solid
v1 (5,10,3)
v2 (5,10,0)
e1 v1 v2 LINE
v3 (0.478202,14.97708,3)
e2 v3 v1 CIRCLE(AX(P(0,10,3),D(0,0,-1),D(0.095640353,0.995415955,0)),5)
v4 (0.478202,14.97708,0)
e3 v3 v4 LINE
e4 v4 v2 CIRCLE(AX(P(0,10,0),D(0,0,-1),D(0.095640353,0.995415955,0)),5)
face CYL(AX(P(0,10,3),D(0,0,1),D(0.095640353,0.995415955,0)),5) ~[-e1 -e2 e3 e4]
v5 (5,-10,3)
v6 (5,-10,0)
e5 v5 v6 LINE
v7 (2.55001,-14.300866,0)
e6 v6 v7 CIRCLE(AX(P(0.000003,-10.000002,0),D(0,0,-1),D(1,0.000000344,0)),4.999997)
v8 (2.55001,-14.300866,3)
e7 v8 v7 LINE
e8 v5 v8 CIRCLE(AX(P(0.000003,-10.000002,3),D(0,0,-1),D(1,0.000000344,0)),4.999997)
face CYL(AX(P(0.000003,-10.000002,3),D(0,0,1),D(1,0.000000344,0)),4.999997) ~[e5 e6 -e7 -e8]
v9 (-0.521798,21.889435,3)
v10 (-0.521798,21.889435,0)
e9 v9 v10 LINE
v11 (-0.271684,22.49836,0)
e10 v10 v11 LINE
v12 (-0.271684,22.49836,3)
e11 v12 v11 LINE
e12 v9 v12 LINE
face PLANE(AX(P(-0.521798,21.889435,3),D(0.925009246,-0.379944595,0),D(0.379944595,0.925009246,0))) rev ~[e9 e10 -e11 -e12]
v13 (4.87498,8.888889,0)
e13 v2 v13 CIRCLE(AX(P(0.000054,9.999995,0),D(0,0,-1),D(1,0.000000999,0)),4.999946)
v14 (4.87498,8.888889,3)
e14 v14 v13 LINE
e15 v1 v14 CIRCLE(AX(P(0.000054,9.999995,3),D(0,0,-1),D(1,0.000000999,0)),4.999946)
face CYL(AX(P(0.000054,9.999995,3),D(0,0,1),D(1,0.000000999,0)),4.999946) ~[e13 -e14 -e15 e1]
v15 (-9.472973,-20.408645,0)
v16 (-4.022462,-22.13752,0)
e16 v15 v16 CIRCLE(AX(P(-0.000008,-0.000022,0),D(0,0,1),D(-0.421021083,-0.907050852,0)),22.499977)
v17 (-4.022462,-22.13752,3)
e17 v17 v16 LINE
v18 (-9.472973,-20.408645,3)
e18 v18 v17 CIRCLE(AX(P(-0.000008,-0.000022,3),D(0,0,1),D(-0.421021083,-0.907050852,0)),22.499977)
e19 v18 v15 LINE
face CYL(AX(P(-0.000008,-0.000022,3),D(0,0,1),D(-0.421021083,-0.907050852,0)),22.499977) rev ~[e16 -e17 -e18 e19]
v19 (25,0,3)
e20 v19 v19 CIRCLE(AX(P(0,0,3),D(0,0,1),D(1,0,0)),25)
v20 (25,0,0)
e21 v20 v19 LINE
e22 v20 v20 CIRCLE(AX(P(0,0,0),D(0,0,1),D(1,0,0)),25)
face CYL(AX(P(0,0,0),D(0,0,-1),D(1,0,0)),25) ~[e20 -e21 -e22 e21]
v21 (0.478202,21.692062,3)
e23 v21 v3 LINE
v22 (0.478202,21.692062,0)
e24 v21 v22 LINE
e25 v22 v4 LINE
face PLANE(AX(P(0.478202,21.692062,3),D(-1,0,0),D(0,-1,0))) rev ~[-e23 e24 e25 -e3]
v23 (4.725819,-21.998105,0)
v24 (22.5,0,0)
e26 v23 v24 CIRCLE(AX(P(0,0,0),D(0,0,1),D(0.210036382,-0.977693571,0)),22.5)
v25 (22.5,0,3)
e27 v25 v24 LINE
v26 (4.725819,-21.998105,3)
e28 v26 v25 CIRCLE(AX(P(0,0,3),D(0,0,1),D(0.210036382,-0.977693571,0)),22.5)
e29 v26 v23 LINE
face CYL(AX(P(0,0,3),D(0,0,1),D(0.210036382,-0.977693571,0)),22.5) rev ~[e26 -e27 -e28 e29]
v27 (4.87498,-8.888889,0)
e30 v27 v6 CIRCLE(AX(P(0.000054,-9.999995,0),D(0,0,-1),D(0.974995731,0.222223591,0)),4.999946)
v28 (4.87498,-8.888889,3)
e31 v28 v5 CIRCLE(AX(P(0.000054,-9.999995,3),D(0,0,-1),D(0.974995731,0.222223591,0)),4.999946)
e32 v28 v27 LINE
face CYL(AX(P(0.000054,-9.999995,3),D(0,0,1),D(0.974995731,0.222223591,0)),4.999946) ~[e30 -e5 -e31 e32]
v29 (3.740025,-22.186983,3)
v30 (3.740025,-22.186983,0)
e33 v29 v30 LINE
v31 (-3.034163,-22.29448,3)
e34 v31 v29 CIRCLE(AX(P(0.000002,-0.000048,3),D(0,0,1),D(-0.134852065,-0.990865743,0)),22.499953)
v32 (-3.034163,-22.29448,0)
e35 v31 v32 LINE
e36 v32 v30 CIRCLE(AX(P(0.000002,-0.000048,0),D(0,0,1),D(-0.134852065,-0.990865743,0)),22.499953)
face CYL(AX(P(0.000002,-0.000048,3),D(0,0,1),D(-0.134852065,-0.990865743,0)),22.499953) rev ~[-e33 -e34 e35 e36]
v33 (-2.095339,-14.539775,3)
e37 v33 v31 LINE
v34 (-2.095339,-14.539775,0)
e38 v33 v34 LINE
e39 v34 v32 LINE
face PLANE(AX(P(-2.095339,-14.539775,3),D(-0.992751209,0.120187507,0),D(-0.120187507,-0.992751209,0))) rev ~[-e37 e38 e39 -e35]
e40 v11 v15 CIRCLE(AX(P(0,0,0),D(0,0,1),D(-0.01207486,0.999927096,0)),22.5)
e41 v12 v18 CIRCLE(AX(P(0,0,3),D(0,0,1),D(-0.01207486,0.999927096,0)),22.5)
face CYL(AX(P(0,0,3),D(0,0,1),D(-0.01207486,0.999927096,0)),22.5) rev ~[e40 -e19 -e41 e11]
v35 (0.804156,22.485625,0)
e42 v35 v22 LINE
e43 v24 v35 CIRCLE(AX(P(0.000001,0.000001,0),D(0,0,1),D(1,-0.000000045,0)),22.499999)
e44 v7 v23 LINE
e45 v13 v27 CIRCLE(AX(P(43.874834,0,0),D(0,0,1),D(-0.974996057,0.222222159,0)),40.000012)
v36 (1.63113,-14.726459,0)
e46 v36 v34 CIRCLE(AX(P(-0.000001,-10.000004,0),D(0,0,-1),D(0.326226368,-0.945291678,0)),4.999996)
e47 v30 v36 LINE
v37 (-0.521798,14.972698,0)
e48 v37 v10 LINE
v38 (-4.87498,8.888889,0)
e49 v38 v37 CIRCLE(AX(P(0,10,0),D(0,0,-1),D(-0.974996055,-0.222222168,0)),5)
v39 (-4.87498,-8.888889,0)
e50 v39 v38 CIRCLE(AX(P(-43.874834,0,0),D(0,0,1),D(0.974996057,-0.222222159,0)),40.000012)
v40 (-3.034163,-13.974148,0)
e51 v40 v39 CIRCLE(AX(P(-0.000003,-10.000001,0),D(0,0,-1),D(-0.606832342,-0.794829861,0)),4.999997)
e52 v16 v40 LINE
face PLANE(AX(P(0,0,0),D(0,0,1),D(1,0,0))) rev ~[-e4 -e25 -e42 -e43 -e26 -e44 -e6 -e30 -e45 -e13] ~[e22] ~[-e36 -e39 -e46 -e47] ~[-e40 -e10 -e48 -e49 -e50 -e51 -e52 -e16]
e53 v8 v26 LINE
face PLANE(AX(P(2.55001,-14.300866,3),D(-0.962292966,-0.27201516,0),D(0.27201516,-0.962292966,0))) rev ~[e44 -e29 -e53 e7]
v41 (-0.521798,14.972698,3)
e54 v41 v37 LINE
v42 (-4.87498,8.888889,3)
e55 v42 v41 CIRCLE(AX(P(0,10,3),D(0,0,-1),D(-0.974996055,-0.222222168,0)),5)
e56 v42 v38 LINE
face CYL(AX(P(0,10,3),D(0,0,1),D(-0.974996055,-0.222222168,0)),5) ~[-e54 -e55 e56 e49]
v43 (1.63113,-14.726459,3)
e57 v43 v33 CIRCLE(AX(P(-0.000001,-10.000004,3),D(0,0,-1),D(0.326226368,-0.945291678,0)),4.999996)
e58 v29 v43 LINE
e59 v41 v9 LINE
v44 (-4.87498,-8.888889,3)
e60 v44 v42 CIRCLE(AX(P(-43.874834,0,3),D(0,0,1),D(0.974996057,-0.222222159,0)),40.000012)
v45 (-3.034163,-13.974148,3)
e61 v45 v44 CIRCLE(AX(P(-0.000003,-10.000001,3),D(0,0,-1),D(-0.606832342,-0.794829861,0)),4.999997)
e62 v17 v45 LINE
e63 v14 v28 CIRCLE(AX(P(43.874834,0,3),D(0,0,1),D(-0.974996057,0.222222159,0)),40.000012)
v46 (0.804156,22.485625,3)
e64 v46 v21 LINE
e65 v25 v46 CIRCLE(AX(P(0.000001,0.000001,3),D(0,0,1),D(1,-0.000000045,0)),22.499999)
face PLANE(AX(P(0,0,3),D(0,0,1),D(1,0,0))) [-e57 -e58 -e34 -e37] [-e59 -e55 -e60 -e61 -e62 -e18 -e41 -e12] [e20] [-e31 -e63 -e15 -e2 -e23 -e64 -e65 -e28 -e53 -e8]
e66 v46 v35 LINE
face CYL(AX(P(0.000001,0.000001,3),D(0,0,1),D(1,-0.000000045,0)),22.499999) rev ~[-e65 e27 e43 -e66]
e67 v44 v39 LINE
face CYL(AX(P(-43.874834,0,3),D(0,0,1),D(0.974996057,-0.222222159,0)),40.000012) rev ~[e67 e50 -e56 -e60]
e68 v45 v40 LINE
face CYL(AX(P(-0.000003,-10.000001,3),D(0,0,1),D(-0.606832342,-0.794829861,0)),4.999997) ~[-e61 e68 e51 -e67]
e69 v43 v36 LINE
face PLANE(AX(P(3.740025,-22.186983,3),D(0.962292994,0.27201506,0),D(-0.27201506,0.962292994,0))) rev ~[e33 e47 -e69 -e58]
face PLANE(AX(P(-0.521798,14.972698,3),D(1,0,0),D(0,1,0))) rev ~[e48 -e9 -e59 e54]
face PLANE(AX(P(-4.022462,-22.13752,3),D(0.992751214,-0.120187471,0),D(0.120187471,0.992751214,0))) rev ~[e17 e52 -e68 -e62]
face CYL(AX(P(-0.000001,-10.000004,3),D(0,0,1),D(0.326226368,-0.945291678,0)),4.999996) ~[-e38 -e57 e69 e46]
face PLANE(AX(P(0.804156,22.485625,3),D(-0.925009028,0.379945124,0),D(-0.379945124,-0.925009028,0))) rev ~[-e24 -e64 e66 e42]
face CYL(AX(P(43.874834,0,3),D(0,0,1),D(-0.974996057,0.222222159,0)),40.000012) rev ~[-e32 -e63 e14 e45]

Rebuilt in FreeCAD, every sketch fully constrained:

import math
import FreeCAD as App
import Part
import Sketcher
from FreeCAD import Vector
Q = App.Units.Quantity

doc = App.newDocument("Part")
params = doc.addObject("Spreadsheet::Sheet", "Params")
for row, (alias, value) in enumerate([
    ("sketch1_diameter", "50 mm"),
    ("pad1_length", "3 mm"),
    ("sketch2_radius", "5 mm"),
    ("sketch2_radius2", "5 mm"),
    ("sketch2_radius3", "22.5 mm"),
    ("sketch2_radius4", "22.5 mm"),
    ("pocket1_length", "3 mm"),
], start=1):
    params.set(f"A{row}", alias)
    params.set(f"B{row}", "=" + value)
    params.setAlias(f"B{row}", alias)

body = doc.addObject("PartDesign::Body", "Body")

sketch1 = body.newObject("Sketcher::SketchObject", "Sketch")
sketch1.AttachmentSupport = (doc.getObject("XY_Plane"), [""])
sketch1.MapMode = "FlatFace"
sketch1.addGeometry(Part.Circle(Vector(0, 0, 0), Vector(0, 0, 1), 25), False)
sketch1.addConstraint([
    Sketcher.Constraint("Coincident", 0, 3, -1, 1),
    Sketcher.Constraint("Diameter", 0, Q("50 mm")),
])
sketch1.setExpression("Constraints[1]", "Params.sketch1_diameter")
pad1 = body.newObject("PartDesign::Pad", "Pad")
pad1.Profile = sketch1
pad1.setExpression("Length", "Params.pad1_length")

sketch2 = body.newObject("Sketcher::SketchObject", "Sketch001")
sketch2.AttachmentSupport = (doc.getObject("XY_Plane"), [""])
sketch2.MapMode = "FlatFace"
sketch2.AttachmentOffset = App.Placement(Vector(0, 0, 3), App.Rotation())
sketch2.addGeometry([
    Part.ArcOfCircle(Part.Circle(Vector(0, 0, 0), Vector(0, 0, 1), 22.5), math.radians(-77.875516), math.radians(0)),
    Part.ArcOfCircle(Part.Circle(Vector(0.000001, 0.000001, 0), Vector(0, 0, 1), 22.499999), math.radians(-0.000003), math.radians(87.9518)),
    Part.LineSegment(Vector(0.804156, 22.485625, 0), Vector(0.478202, 21.692062, 0)),
    Part.LineSegment(Vector(0.478202, 21.692062, 0), Vector(0.478202, 14.97708, 0)),
    Part.ArcOfCircle(Part.Circle(Vector(0, 10, 0), Vector(0, 0, 1), 5), math.radians(-0.000006), math.radians(84.511823)),
    Part.ArcOfCircle(Part.Circle(Vector(0.000054, 9.999995, 0), Vector(0, 0, 1), 4.999946), math.radians(-12.839669), math.radians(0.000057)),
    Part.ArcOfCircle(Part.Circle(Vector(43.874834, 0, 0), Vector(0, 0, 1), 40.000012), math.radians(167.160415), math.radians(192.839585)),
    Part.ArcOfCircle(Part.Circle(Vector(0.000054, -9.999995, 0), Vector(0, 0, 1), 4.999946), math.radians(-0.000057), math.radians(12.839669)),
    Part.ArcOfCircle(Part.Circle(Vector(0.000003, -10.000002, 0), Vector(0, 0, 1), 4.999997), math.radians(-59.336058), math.radians(0.00002)),
    Part.LineSegment(Vector(2.55001, -14.300866, 0), Vector(4.725819, -21.998105, 0)),
    Part.ArcOfCircle(Part.Circle(Vector(0.000002, -0.000048, 0), Vector(0, 0, 1), 22.499953), math.radians(-97.750066), math.radians(-80.431677)),
    Part.LineSegment(Vector(3.740025, -22.186983, 0), Vector(1.63113, -14.726459, 0)),
    Part.ArcOfCircle(Part.Circle(Vector(-0.000001, -10.000004, 0), Vector(0, 0, 1), 4.999996), math.radians(-114.775761), math.radians(-70.960109)),
    Part.LineSegment(Vector(-2.095339, -14.539775, 0), Vector(-3.034163, -22.29448, 0)),
    Part.LineSegment(Vector(-0.521798, 21.889435, 0), Vector(-0.271684, 22.49836, 0)),
    Part.ArcOfCircle(Part.Circle(Vector(0, 0, 0), Vector(0, 0, 1), 22.5), math.radians(90.691855), math.radians(245.100934)),
    Part.ArcOfCircle(Part.Circle(Vector(-0.000008, -0.000022, 0), Vector(0, 0, 1), 22.499977), math.radians(-114.89907), math.radians(-100.298468)),
    Part.LineSegment(Vector(-4.022462, -22.13752, 0), Vector(-3.034163, -13.974148, 0)),
    Part.ArcOfCircle(Part.Circle(Vector(-0.000003, -10.000001, 0), Vector(0, 0, 1), 4.999997), math.radians(167.160392), math.radians(232.639189)),
    Part.ArcOfCircle(Part.Circle(Vector(-43.874834, 0, 0), Vector(0, 0, 1), 40.000012), math.radians(-12.839585), math.radians(12.839585)),
    Part.ArcOfCircle(Part.Circle(Vector(0, 10, 0), Vector(0, 0, 1), 5), math.radians(95.990275), math.radians(192.839585)),
    Part.LineSegment(Vector(-0.521798, 14.972698, 0), Vector(-0.521798, 21.889435, 0)),
], False)
sketch2.addConstraint([
    Sketcher.Constraint("Coincident", 0, 2, 1, 1),
    Sketcher.Constraint("Coincident", 1, 2, 2, 1),
    Sketcher.Constraint("Coincident", 2, 2, 3, 1),
    Sketcher.Constraint("Coincident", 3, 2, 4, 2),
    Sketcher.Constraint("Coincident", 4, 1, 5, 2),
    Sketcher.Constraint("Coincident", 5, 1, 6, 1),
    Sketcher.Constraint("Coincident", 6, 2, 7, 2),
    Sketcher.Constraint("Coincident", 7, 1, 8, 2),
    Sketcher.Constraint("Coincident", 8, 1, 9, 1),
    Sketcher.Constraint("Coincident", 9, 2, 0, 1),
    Sketcher.Constraint("Coincident", 10, 2, 11, 1),
    Sketcher.Constraint("Coincident", 11, 2, 12, 2),
    Sketcher.Constraint("Coincident", 12, 1, 13, 1),
    Sketcher.Constraint("Coincident", 13, 2, 10, 1),
    Sketcher.Constraint("Coincident", 14, 2, 15, 1),
    Sketcher.Constraint("Coincident", 15, 2, 16, 1),
    Sketcher.Constraint("Coincident", 16, 2, 17, 1),
    Sketcher.Constraint("Coincident", 17, 2, 18, 2),
    Sketcher.Constraint("Coincident", 18, 1, 19, 1),
    Sketcher.Constraint("Coincident", 19, 2, 20, 2),
    Sketcher.Constraint("Coincident", 20, 1, 21, 1),
    Sketcher.Constraint("Coincident", 21, 2, 14, 1),
    Sketcher.Constraint("Vertical", 3),
    Sketcher.Constraint("Vertical", 21),
    Sketcher.Constraint("Coincident", 0, 3, -1, 1),
    Sketcher.Constraint("Coincident", 1, 3, -1, 1),
    Sketcher.Constraint("Coincident", 15, 3, -1, 1),
    Sketcher.Constraint("Coincident", 12, 3, 8, 3),
    Sketcher.Constraint("Coincident", 18, 3, 8, 3),
    Sketcher.Constraint("Coincident", 20, 3, 4, 3),
    Sketcher.Constraint("PointOnObject", 4, 3, -2),
    Sketcher.Constraint("PointOnObject", 6, 3, -1),
    Sketcher.Constraint("PointOnObject", 12, 3, -2),
    Sketcher.Constraint("PointOnObject", 19, 3, -1),
    Sketcher.Constraint("PointOnObject", 0, 2, -1),
    Sketcher.Constraint("Radius", 4, Q("5 mm")),
    Sketcher.Constraint("Radius", 20, Q("5 mm")),
    Sketcher.Constraint("Radius", 0, Q("22.5 mm")),
    Sketcher.Constraint("Radius", 15, Q("22.5 mm")),
    Sketcher.Constraint("DistanceY", -1, 1, 4, 3, Q("10 mm")),
    Sketcher.Constraint("DistanceY", 8, 3, -1, 1, Q("10.000002 mm")),
    Sketcher.Constraint("DistanceY", -1, 1, 4, 1, Q("10 mm")),
    Sketcher.Constraint("DistanceX", -1, 1, 7, 1, Q("5 mm")),
    Sketcher.Constraint("DistanceY", 7, 1, -1, 1, Q("10 mm")),
    Sketcher.Constraint("DistanceX", 20, 1, 3, 2, Q("1 mm")),
    Sketcher.Constraint("Radius", 6, Q("40.000012 mm")),
    Sketcher.Constraint("Radius", 19, Q("40.000012 mm")),
    Sketcher.Constraint("Radius", 5, Q("4.999946 mm")),
    Sketcher.Constraint("Radius", 7, Q("4.999946 mm")),
    Sketcher.Constraint("Radius", 10, Q("22.499953 mm")),
    Sketcher.Constraint("Radius", 12, Q("4.999996 mm")),
    Sketcher.Constraint("Radius", 16, Q("22.499977 mm")),
    Sketcher.Constraint("DistanceY", 3, 2, 3, 1, Q("6.714982 mm")),
    Sketcher.Constraint("DistanceX", 4, 3, 2, 2, Q("0.478202 mm")),
    Sketcher.Constraint("DistanceY", 9, 2, 12, 3, Q("11.998101 mm")),
    Sketcher.Constraint("DistanceY", 2, 2, 14, 2, Q("0.806298 mm")),
    Sketcher.Constraint("DistanceX", 16, 2, 13, 2, Q("0.988299 mm")),
    Sketcher.Constraint("Distance", 9, Q("7.998852 mm")),
    Sketcher.Constraint("Distance", 11, Q("7.752861 mm")),
    Sketcher.Constraint("Distance", 14, Q("0.658291 mm")),
    Sketcher.Constraint("Distance", 17, Q("8.222979 mm")),
    Sketcher.Constraint("DistanceX", -1, 1, 5, 1, Q("4.87498 mm")),
    Sketcher.Constraint("DistanceY", -1, 1, 5, 1, Q("8.888889 mm")),
    Sketcher.Constraint("DistanceX", -1, 1, 6, 2, Q("4.87498 mm")),
    Sketcher.Constraint("DistanceX", -1, 1, 11, 2, Q("1.63113 mm")),
    Sketcher.Constraint("DistanceX", 12, 1, -1, 1, Q("2.095339 mm")),
    Sketcher.Constraint("DistanceY", 13, 2, -1, 1, Q("22.29448 mm")),
    Sketcher.Constraint("DistanceY", 16, 2, -1, 1, Q("22.13752 mm")),
    Sketcher.Constraint("DistanceX", 18, 1, -1, 1, Q("4.87498 mm")),
    Sketcher.Constraint("DistanceX", 19, 2, -1, 1, Q("4.87498 mm")),
    Sketcher.Constraint("DistanceY", 18, 3, 16, 3, Q("9.999979 mm")),
    Sketcher.Constraint("DistanceY", 5, 3, 1, 2, Q("12.48563 mm")),
    Sketcher.Constraint("DistanceX", 7, 3, 10, 2, Q("3.739971 mm")),
    Sketcher.Constraint("DistanceX", 15, 2, 13, 2, Q("6.43881 mm")),
])
sketch2.setExpression("Constraints[35]", "Params.sketch2_radius")
sketch2.setExpression("Constraints[36]", "Params.sketch2_radius2")
sketch2.setExpression("Constraints[37]", "Params.sketch2_radius3")
sketch2.setExpression("Constraints[38]", "Params.sketch2_radius4")
pocket1 = body.newObject("PartDesign::Pocket", "Pocket")
pocket1.Profile = sketch2
pocket1.setExpression("Length", "Params.pocket1_length")

doc.recompute()
